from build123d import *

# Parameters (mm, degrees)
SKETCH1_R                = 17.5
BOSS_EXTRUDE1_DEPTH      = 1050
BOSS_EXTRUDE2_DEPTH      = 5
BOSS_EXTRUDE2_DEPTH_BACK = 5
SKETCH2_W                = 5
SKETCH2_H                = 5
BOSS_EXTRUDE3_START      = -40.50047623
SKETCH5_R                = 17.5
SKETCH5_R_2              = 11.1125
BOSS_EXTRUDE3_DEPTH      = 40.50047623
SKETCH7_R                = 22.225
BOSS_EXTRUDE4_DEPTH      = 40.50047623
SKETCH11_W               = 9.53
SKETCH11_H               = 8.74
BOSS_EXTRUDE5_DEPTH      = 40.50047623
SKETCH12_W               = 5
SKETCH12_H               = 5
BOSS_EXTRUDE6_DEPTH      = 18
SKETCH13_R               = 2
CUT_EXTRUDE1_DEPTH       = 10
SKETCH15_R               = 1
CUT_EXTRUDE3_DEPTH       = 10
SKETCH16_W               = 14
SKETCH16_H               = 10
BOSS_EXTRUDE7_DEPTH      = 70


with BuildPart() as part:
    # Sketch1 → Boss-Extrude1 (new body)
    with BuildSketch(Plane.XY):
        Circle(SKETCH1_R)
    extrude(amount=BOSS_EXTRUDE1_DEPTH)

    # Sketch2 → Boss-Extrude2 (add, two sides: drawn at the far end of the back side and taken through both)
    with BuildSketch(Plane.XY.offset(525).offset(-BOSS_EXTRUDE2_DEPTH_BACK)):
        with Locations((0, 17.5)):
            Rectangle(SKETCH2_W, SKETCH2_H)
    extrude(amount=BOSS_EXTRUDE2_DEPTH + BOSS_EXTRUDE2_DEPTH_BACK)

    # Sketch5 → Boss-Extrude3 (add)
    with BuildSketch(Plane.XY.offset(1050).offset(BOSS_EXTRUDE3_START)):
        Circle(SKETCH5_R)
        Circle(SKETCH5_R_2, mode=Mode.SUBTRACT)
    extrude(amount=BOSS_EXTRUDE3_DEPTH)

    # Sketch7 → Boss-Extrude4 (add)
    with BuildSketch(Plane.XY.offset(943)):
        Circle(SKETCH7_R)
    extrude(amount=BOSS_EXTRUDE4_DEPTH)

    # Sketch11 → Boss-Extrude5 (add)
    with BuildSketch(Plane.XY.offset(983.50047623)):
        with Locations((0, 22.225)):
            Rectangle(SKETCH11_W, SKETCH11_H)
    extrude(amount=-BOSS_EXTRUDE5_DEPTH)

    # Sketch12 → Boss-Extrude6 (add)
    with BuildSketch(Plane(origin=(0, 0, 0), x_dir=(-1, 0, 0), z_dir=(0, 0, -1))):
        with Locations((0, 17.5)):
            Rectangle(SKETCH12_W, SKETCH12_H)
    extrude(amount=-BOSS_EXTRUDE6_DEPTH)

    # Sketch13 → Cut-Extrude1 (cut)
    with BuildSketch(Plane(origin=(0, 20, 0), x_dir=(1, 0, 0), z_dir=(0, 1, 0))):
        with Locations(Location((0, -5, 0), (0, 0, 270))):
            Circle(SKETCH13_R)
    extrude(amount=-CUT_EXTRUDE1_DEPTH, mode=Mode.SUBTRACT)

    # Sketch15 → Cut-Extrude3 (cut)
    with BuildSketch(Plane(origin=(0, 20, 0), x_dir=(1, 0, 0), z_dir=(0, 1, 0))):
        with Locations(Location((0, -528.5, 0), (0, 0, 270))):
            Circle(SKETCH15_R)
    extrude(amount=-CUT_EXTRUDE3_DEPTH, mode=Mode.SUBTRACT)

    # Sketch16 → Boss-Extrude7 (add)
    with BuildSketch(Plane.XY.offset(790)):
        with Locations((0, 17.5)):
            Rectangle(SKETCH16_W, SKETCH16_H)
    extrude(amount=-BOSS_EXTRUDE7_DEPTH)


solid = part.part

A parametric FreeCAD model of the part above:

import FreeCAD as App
import Part
import Sketcher

doc = App.newDocument("Part")
body = doc.addObject("PartDesign::Body", "Body")

# Sketch on XY plane
sketch1 = body.newObject("Sketcher::SketchObject", "Sketch")
sketch1.AttachmentSupport = (doc.getObject("XY_Plane"), [""])
sketch1.MapMode = "FlatFace"
sketch1.addGeometry(Part.Circle(App.Vector(0, 0, 0), App.Vector(0, 0, 1), 18), False)
sketch1.addConstraint([
    Sketcher.Constraint("Coincident", 0, 3, -1, 1),
    Sketcher.Constraint("Diameter", 0, 35.0),
])
pad1 = body.newObject("PartDesign::Pad", "Pad")
pad1.Profile = sketch1
pad1.Length = 1050

# Sketch on XY plane
sketch2 = body.newObject("Sketcher::SketchObject", "Sketch001")
sketch2.AttachmentSupport = (doc.getObject("XY_Plane"), [""])
sketch2.MapMode = "FlatFace"
sketch2.AttachmentOffset = App.Placement(App.Vector(0, 0, 525), App.Rotation())
sketch2.addGeometry([
    Part.LineSegment(App.Vector(-2, 20, 0), App.Vector(-2, 15, 0)),
    Part.LineSegment(App.Vector(-2, 15, 0), App.Vector(2, 15, 0)),
    Part.LineSegment(App.Vector(2, 15, 0), App.Vector(2, 20, 0)),
    Part.LineSegment(App.Vector(2, 20, 0), App.Vector(-2, 20, 0)),
], False)
sketch2.addConstraint([
    Sketcher.Constraint("Coincident", 0, 2, 1, 1),
    Sketcher.Constraint("Coincident", 1, 2, 2, 1),
    Sketcher.Constraint("Coincident", 2, 2, 3, 1),
    Sketcher.Constraint("Coincident", 3, 2, 0, 1),
    Sketcher.Constraint("Vertical", 0),
    Sketcher.Constraint("Horizontal", 1),
    Sketcher.Constraint("Vertical", 2),
    Sketcher.Constraint("Horizontal", 3),
    Sketcher.Constraint("Equal", 3, 0),
    Sketcher.Constraint("DistanceX", 1, 1, 1, 2, 5.0),
    Sketcher.Constraint("DistanceY", -1, 1, 0, 2, 15.0),
    Sketcher.Constraint("DistanceX", 0, 2, -1, 1, 2.5),
])
pad2 = body.newObject("PartDesign::Pad", "Pad001")
pad2.Profile = sketch2
pad2.Type = "TwoLengths"
pad2.Length = 5
pad2.Length2 = 5

# Sketch on XY plane
sketch3 = body.newObject("Sketcher::SketchObject", "Sketch002")
sketch3.AttachmentSupport = (doc.getObject("XY_Plane"), [""])
sketch3.MapMode = "FlatFace"
sketch3.AttachmentOffset = App.Placement(App.Vector(0, 0, 1009.499524), App.Rotation())
sketch3.addGeometry([
    Part.Circle(App.Vector(0, 0, 0), App.Vector(0, 0, 1), 18),
    Part.Circle(App.Vector(0, 0, 0), App.Vector(0, 0, 1), 11),
], False)
sketch3.addConstraint([
    Sketcher.Constraint("Coincident", 0, 3, -1, 1),
    Sketcher.Constraint("Coincident", 1, 3, -1, 1),
    Sketcher.Constraint("Diameter", 0, 35.0),
    Sketcher.Constraint("Diameter", 1, 22.225),
])
pad3 = body.newObject("PartDesign::Pad", "Pad002")
pad3.Profile = sketch3
pad3.Length = 40.500476

# Sketch on XY plane
sketch4 = body.newObject("Sketcher::SketchObject", "Sketch003")
sketch4.AttachmentSupport = (doc.getObject("XY_Plane"), [""])
sketch4.MapMode = "FlatFace"
sketch4.AttachmentOffset = App.Placement(App.Vector(0, 0, 943), App.Rotation())
sketch4.addGeometry(Part.Circle(App.Vector(0, 0, 0), App.Vector(0, 0, 1), 22), False)
sketch4.addConstraint([
    Sketcher.Constraint("Coincident", 0, 3, -1, 1),
    Sketcher.Constraint("Diameter", 0, 44.45),
])
pad4 = body.newObject("PartDesign::Pad", "Pad003")
pad4.Profile = sketch4
pad4.Length = 40.500476

# Sketch on XY plane
sketch5 = body.newObject("Sketcher::SketchObject", "Sketch004")
sketch5.AttachmentSupport = (doc.getObject("XY_Plane"), [""])
sketch5.MapMode = "FlatFace"
sketch5.AttachmentOffset = App.Placement(App.Vector(0, 0, 983.500476), App.Rotation())
sketch5.addGeometry([
    Part.LineSegment(App.Vector(-5, 27, 0), App.Vector(-5, 18, 0)),
    Part.LineSegment(App.Vector(-5, 18, 0), App.Vector(5, 18, 0)),
    Part.LineSegment(App.Vector(5, 18, 0), App.Vector(5, 27, 0)),
    Part.LineSegment(App.Vector(5, 27, 0), App.Vector(-5, 27, 0)),
], False)
sketch5.addConstraint([
    Sketcher.Constraint("Coincident", 0, 2, 1, 1),
    Sketcher.Constraint("Coincident", 1, 2, 2, 1),
    Sketcher.Constraint("Coincident", 2, 2, 3, 1),
    Sketcher.Constraint("Coincident", 3, 2, 0, 1),
    Sketcher.Constraint("Vertical", 0),
    Sketcher.Constraint("Horizontal", 1),
    Sketcher.Constraint("Vertical", 2),
    Sketcher.Constraint("Horizontal", 3),
    Sketcher.Constraint("DistanceX", 1, 1, 1, 2, 9.53),
    Sketcher.Constraint("DistanceY", 0, 2, 0, 1, 8.74),
    Sketcher.Constraint("DistanceX", 0, 2, -1, 1, 4.765),
    Sketcher.Constraint("DistanceY", -1, 1, 0, 2, 17.855),
])
pad5 = body.newObject("PartDesign::Pad", "Pad004")
pad5.Profile = sketch5
pad5.Length = 40.500476
pad5.Reversed = True

# Sketch on XY plane
sketch6 = body.newObject("Sketcher::SketchObject", "Sketch005")
sketch6.AttachmentSupport = (doc.getObject("XY_Plane"), [""])
sketch6.MapMode = "FlatFace"
sketch6.addGeometry([
    Part.LineSegment(App.Vector(2, 20, 0), App.Vector(2, 15, 0)),
    Part.LineSegment(App.Vector(2, 15, 0), App.Vector(-2, 15, 0)),
    Part.LineSegment(App.Vector(-2, 15, 0), App.Vector(-2, 20, 0)),
    Part.LineSegment(App.Vector(-2, 20, 0), App.Vector(2, 20, 0)),
], False)
sketch6.addConstraint([
    Sketcher.Constraint("Coincident", 0, 2, 1, 1),
    Sketcher.Constraint("Coincident", 1, 2, 2, 1),
    Sketcher.Constraint("Coincident", 2, 2, 3, 1),
    Sketcher.Constraint("Coincident", 3, 2, 0, 1),
    Sketcher.Constraint("Vertical", 0),
    Sketcher.Constraint("Horizontal", 1),
    Sketcher.Constraint("Vertical", 2),
    Sketcher.Constraint("Horizontal", 3),
    Sketcher.Constraint("Equal", 3, 0),
    Sketcher.Constraint("DistanceX", 1, 2, 1, 1, 5.0),
    Sketcher.Constraint("DistanceY", -1, 1, 0, 2, 15.0),
    Sketcher.Constraint("DistanceX", -1, 1, 0, 2, 2.5),
])
pad6 = body.newObject("PartDesign::Pad", "Pad005")
pad6.Profile = sketch6
pad6.Length = 18

# Sketch on XZ plane
sketch7 = body.newObject("Sketcher::SketchObject", "Sketch006")
sketch7.AttachmentSupport = (doc.getObject("XZ_Plane"), [""])
sketch7.MapMode = "FlatFace"
sketch7.AttachmentOffset = App.Placement(App.Vector(0, 0, -20), App.Rotation())
sketch7.addGeometry(Part.Circle(App.Vector(0, 5, 0), App.Vector(0, 0, 1), 2), False)
sketch7.addConstraint([
    Sketcher.Constraint("PointOnObject", 0, 3, -2),
    Sketcher.Constraint("Diameter", 0, 4.0),
    Sketcher.Constraint("DistanceY", -1, 1, 0, 3, 5.0),
])
pocket1 = body.newObject("PartDesign::Pocket", "Pocket")
pocket1.Profile = sketch7
pocket1.Length = 10
pocket1.Reversed = True

# Sketch on XZ plane
sketch8 = body.newObject("Sketcher::SketchObject", "Sketch007")
sketch8.AttachmentSupport = (doc.getObject("XZ_Plane"), [""])
sketch8.MapMode = "FlatFace"
sketch8.AttachmentOffset = App.Placement(App.Vector(0, 0, -20), App.Rotation())
sketch8.addGeometry(Part.Circle(App.Vector(0, 528.5, 0), App.Vector(0, 0, 1), 1), False)
sketch8.addConstraint([
    Sketcher.Constraint("PointOnObject", 0, 3, -2),
    Sketcher.Constraint("Diameter", 0, 2.0),
    Sketcher.Constraint("DistanceY", -1, 1, 0, 3, 528.5),
])
pocket2 = body.newObject("PartDesign::Pocket", "Pocket001")
pocket2.Profile = sketch8
pocket2.Length = 10
pocket2.Reversed = True

# Sketch on XY plane
sketch9 = body.newObject("Sketcher::SketchObject", "Sketch008")
sketch9.AttachmentSupport = (doc.getObject("XY_Plane"), [""])
sketch9.MapMode = "FlatFace"
sketch9.AttachmentOffset = App.Placement(App.Vector(0, 0, 790), App.Rotation())
sketch9.addGeometry([
    Part.LineSegment(App.Vector(-7, 22, 0), App.Vector(-7, 12, 0)),
    Part.LineSegment(App.Vector(-7, 12, 0), App.Vector(7, 12, 0)),
    Part.LineSegment(App.Vector(7, 12, 0), App.Vector(7, 22, 0)),
    Part.LineSegment(App.Vector(7, 22, 0), App.Vector(-7, 22, 0)),
], False)
sketch9.addConstraint([
    Sketcher.Constraint("Coincident", 0, 2, 1, 1),
    Sketcher.Constraint("Coincident", 1, 2, 2, 1),
    Sketcher.Constraint("Coincident", 2, 2, 3, 1),
    Sketcher.Constraint("Coincident", 3, 2, 0, 1),
    Sketcher.Constraint("Vertical", 0),
    Sketcher.Constraint("Horizontal", 1),
    Sketcher.Constraint("Vertical", 2),
    Sketcher.Constraint("Horizontal", 3),
    Sketcher.Constraint("DistanceX", 1, 1, 1, 2, 14.0),
    Sketcher.Constraint("DistanceY", 0, 2, 0, 1, 10.0),
    Sketcher.Constraint("DistanceX", 0, 2, -1, 1, 7.0),
    Sketcher.Constraint("DistanceY", -1, 1, 0, 2, 12.5),
])
pad7 = body.newObject("PartDesign::Pad", "Pad006")
pad7.Profile = sketch9
pad7.Length = 70
pad7.Reversed = True

doc.recompute()
